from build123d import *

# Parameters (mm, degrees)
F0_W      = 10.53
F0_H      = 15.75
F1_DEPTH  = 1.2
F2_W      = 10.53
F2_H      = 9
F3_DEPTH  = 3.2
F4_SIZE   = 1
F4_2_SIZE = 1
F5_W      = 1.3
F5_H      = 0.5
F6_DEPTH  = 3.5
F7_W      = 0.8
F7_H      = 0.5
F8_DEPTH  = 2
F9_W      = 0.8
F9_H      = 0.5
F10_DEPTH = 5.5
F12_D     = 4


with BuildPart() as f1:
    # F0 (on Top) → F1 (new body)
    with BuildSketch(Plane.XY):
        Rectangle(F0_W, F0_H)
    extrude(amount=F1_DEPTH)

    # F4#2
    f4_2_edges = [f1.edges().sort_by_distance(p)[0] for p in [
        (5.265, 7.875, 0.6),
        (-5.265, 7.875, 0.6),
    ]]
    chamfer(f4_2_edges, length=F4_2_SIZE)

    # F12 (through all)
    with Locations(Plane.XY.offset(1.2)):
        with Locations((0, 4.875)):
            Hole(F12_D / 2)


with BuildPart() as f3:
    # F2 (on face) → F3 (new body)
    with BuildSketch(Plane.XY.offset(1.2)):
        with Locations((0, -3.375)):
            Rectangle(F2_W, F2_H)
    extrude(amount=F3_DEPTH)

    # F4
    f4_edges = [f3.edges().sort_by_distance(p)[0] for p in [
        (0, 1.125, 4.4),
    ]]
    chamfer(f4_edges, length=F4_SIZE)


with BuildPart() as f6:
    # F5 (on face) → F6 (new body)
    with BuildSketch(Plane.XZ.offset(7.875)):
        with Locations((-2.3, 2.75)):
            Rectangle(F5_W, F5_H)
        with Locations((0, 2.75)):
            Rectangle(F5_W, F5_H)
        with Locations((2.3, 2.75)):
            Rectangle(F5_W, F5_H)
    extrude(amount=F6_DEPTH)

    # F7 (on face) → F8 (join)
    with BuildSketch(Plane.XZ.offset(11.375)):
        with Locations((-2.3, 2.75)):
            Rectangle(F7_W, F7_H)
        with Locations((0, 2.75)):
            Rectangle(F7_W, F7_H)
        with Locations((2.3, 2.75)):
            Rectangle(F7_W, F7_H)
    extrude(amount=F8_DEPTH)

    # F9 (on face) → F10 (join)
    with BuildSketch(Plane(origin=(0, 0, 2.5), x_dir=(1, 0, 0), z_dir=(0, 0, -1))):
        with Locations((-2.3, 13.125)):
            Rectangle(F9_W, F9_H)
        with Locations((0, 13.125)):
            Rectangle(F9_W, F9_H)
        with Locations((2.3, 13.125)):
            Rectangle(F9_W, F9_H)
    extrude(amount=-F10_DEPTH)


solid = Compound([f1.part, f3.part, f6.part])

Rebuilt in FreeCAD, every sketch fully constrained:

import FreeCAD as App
import Part
import Sketcher


def edges_at(feature, points):
    """Names of the edges that pass closest to the given points."""
    edges = feature.Shape.Edges
    near = lambda p: min(range(len(edges)), key=lambda i: edges[i].distToShape(Part.Vertex(*p))[0])
    return sorted({f"Edge{near(p) + 1}" for p in points})


def add_polygon(sketch, points):
    """Adds a closed chain of lines whose ends are joined by coincident constraints."""
    first, n = sketch.GeometryCount, len(points)
    for a, b in zip(points, points[1:] + points[:1]):
        sketch.addGeometry(Part.LineSegment(App.Vector(*a, 0), App.Vector(*b, 0)), False)
    for i in range(n):
        sketch.addConstraint(Sketcher.Constraint("Coincident", first + i, 2, first + (i + 1) % n, 1))

doc = App.newDocument("Part")
body = doc.addObject("PartDesign::Body", "Body")

# Sketch on XY plane
sketch1 = body.newObject("Sketcher::SketchObject", "Sketch")
sketch1.AttachmentSupport = (doc.getObject("XY_Plane"), [""])
sketch1.MapMode = "FlatFace"
add_polygon(sketch1, [(-5, 8), (-5, -8), (5, -8), (5, 8)])  # lines 0-3
sketch1.addConstraint([
    Sketcher.Constraint("Vertical", 0),
    Sketcher.Constraint("Horizontal", 1),
    Sketcher.Constraint("Vertical", 2),
    Sketcher.Constraint("Horizontal", 3),
    Sketcher.Constraint("Symmetric", 0, 2, 2, 2, -1, 1),
    Sketcher.Constraint("DistanceX", 1, 1, 1, 2, 10.53),
    Sketcher.Constraint("DistanceY", 0, 2, 0, 1, 15.75),
])
pad1 = body.newObject("PartDesign::Pad", "Pad")
pad1.Profile = sketch1
pad1.Length = 1.2
doc.recompute()

chamfer = body.newObject("PartDesign::Chamfer", "Chamfer")
chamfer.Base = (pad1, edges_at(pad1, [(5.265, 7.875, 0.6), (-5.265, 7.875, 0.6)]))
chamfer.Size = 1

# Sketch on XY plane
sketch2 = body.newObject("Sketcher::SketchObject", "Sketch001")
sketch2.AttachmentSupport = (doc.getObject("XY_Plane"), [""])
sketch2.MapMode = "FlatFace"
sketch2.AttachmentOffset = App.Placement(App.Vector(0, 0, 1.2), App.Rotation())
sketch2.addGeometry(Part.Circle(App.Vector(0, 4.9, 0), App.Vector(0, 0, 1), 2), False)
sketch2.addConstraint([
    Sketcher.Constraint("PointOnObject", 0, 3, -2),
    Sketcher.Constraint("Diameter", 0, 4.0),
    Sketcher.Constraint("DistanceY", -1, 1, 0, 3, 4.875),
])
doc.recompute()
hole = body.newObject("PartDesign::Hole", "Hole")
hole.Profile = sketch2
hole.ThreadType = "None"
hole.Diameter = 4
hole.DepthType = "ThroughAll"
body2 = doc.addObject("PartDesign::Body", "Body001")

# Sketch on XY plane
sketch3 = body2.newObject("Sketcher::SketchObject", "Sketch002")
sketch3.AttachmentSupport = (doc.getObject("XY_Plane001"), [""])
sketch3.MapMode = "FlatFace"
sketch3.AttachmentOffset = App.Placement(App.Vector(0, 0, 1.2), App.Rotation())
add_polygon(sketch3, [(-5, 1), (-5, -8), (5, -8), (5, 1)])  # lines 0-3
sketch3.addConstraint([
    Sketcher.Constraint("Vertical", 0),
    Sketcher.Constraint("Horizontal", 1),
    Sketcher.Constraint("Vertical", 2),
    Sketcher.Constraint("Horizontal", 3),
    Sketcher.Constraint("DistanceY", 0, 2, 0, 1, 9.0),
    Sketcher.Constraint("DistanceX", 1, 1, 1, 2, 10.53),
    Sketcher.Constraint("DistanceX", 0, 2, -1, 1, 5.265),
    Sketcher.Constraint("DistanceY", 0, 2, -1, 1, 7.875),
])
pad2 = body2.newObject("PartDesign::Pad", "Pad001")
pad2.Profile = sketch3
pad2.Length = 3.2
doc.recompute()

chamfer2 = body2.newObject("PartDesign::Chamfer", "Chamfer001")
chamfer2.Base = (pad2, edges_at(pad2, [(0, 1.125, 4.4)]))
chamfer2.Size = 1
body3 = doc.addObject("PartDesign::Body", "Body002")
body3.AllowCompound = True

# Sketch on XZ plane
sketch4 = body3.newObject("Sketcher::SketchObject", "Sketch003")
sketch4.AttachmentSupport = (doc.getObject("XZ_Plane002"), [""])
sketch4.MapMode = "FlatFace"
sketch4.AttachmentOffset = App.Placement(App.Vector(0, 0, 7.875), App.Rotation())
add_polygon(sketch4, [(-3, 3), (-3, 2.5), (-1.6, 2.5), (-1.6, 3)])  # lines 0-3
add_polygon(sketch4, [(-0.7, 3), (-0.7, 2.5), (0.7, 2.5), (0.7, 3)])  # lines 4-7
add_polygon(sketch4, [(1.6, 3), (1.6, 2.5), (3, 2.5), (3, 3)])  # lines 8-11
sketch4.addConstraint([
    Sketcher.Constraint("Vertical", 0),
    Sketcher.Constraint("Horizontal", 1),
    Sketcher.Constraint("Vertical", 2),
    Sketcher.Constraint("Horizontal", 3),
    Sketcher.Constraint("Vertical", 4),
    Sketcher.Constraint("Horizontal", 5),
    Sketcher.Constraint("Vertical", 6),
    Sketcher.Constraint("Horizontal", 7),
    Sketcher.Constraint("Vertical", 8),
    Sketcher.Constraint("Horizontal", 9),
    Sketcher.Constraint("Vertical", 10),
    Sketcher.Constraint("Horizontal", 11),
    Sketcher.Constraint("Symmetric", 1, 2, 8, 2, -2),
    Sketcher.Constraint("Symmetric", 3, 2, 10, 2, -2),
    Sketcher.Constraint("Horizontal", 1, 2, 4, 2),
    Sketcher.Constraint("Horizontal", 3, 2, 6, 2),
    Sketcher.Constraint("Equal", 3, 5),
    Sketcher.Constraint("DistanceX", 1, 1, 1, 2, 1.3),
    Sketcher.Constraint("DistanceY", 0, 2, 0, 1, 0.5),
    Sketcher.Constraint("DistanceY", -1, 1, 2, 2, 3.0),
    Sketcher.Constraint("DistanceX", 1, 2, 4, 2, 1.0),
    Sketcher.Constraint("DistanceX", 5, 2, 8, 2, 1.0),
])
pad3 = body3.newObject("PartDesign::Pad", "Pad002")
pad3.Profile = sketch4
pad3.Length = 3.5

# Sketch on XZ plane
sketch5 = body3.newObject("Sketcher::SketchObject", "Sketch004")
sketch5.AttachmentSupport = (doc.getObject("XZ_Plane002"), [""])
sketch5.MapMode = "FlatFace"
sketch5.AttachmentOffset = App.Placement(App.Vector(0, 0, 11.375), App.Rotation())
add_polygon(sketch5, [(-2.7, 3), (-2.7, 2.5), (-1.9, 2.5), (-1.9, 3)])  # lines 0-3
add_polygon(sketch5, [(-0.4, 3), (-0.4, 2.5), (0.4, 2.5), (0.4, 3)])  # lines 4-7
add_polygon(sketch5, [(1.9, 3), (1.9, 2.5), (2.7, 2.5), (2.7, 3)])  # lines 8-11
sketch5.addConstraint([
    Sketcher.Constraint("Vertical", 0),
    Sketcher.Constraint("Horizontal", 1),
    Sketcher.Constraint("Vertical", 2),
    Sketcher.Constraint("Horizontal", 3),
    Sketcher.Constraint("Vertical", 4),
    Sketcher.Constraint("Horizontal", 5),
    Sketcher.Constraint("Vertical", 6),
    Sketcher.Constraint("Horizontal", 7),
    Sketcher.Constraint("Vertical", 8),
    Sketcher.Constraint("Horizontal", 9),
    Sketcher.Constraint("Vertical", 10),
    Sketcher.Constraint("Horizontal", 11),
    Sketcher.Constraint("Symmetric", 1, 2, 8, 2, -2),
    Sketcher.Constraint("Symmetric", 3, 2, 10, 2, -2),
    Sketcher.Constraint("Horizontal", 1, 2, 4, 2),
    Sketcher.Constraint("Horizontal", 3, 2, 6, 2),
    Sketcher.Constraint("Equal", 3, 5),
    Sketcher.Constraint("DistanceX", 1, 1, 1, 2, 0.8),
    Sketcher.Constraint("DistanceY", 0, 2, 0, 1, 0.5),
    Sketcher.Constraint("DistanceY", -1, 1, 2, 2, 3.0),
    Sketcher.Constraint("DistanceX", 0, 2, -1, 1, 2.7),
    Sketcher.Constraint("DistanceX", 4, 2, -1, 1, 0.4),
])
pad4 = body3.newObject("PartDesign::Pad", "Pad003")
pad4.Profile = sketch5
pad4.Length = 2

# Sketch on XY plane
sketch6 = body3.newObject("Sketcher::SketchObject", "Sketch005")
sketch6.AttachmentSupport = (doc.getObject("XY_Plane002"), [""])
sketch6.MapMode = "FlatFace"
sketch6.AttachmentOffset = App.Placement(App.Vector(0, 0, 2.5), App.Rotation())
add_polygon(sketch6, [(-2.7, -13.4), (-2.7, -12.9), (-1.9, -12.9), (-1.9, -13.4)])  # lines 0-3
add_polygon(sketch6, [(-0.4, -13.4), (-0.4, -12.9), (0.4, -12.9), (0.4, -13.4)])  # lines 4-7
add_polygon(sketch6, [(1.9, -13.4), (1.9, -12.9), (2.7, -12.9), (2.7, -13.4)])  # lines 8-11
sketch6.addConstraint([
    Sketcher.Constraint("Vertical", 0),
    Sketcher.Constraint("Horizontal", 1),
    Sketcher.Constraint("Vertical", 2),
    Sketcher.Constraint("Horizontal", 3),
    Sketcher.Constraint("Vertical", 4),
    Sketcher.Constraint("Horizontal", 5),
    Sketcher.Constraint("Vertical", 6),
    Sketcher.Constraint("Horizontal", 7),
    Sketcher.Constraint("Vertical", 8),
    Sketcher.Constraint("Horizontal", 9),
    Sketcher.Constraint("Vertical", 10),
    Sketcher.Constraint("Horizontal", 11),
    Sketcher.Constraint("Symmetric", 1, 2, 8, 2, -2),
    Sketcher.Constraint("Symmetric", 3, 2, 10, 2, -2),
    Sketcher.Constraint("Horizontal", 1, 2, 4, 2),
    Sketcher.Constraint("Horizontal", 3, 2, 6, 2),
    Sketcher.Constraint("Equal", 3, 5),
    Sketcher.Constraint("DistanceX", 1, 1, 1, 2, 0.8),
    Sketcher.Constraint("DistanceY", 0, 1, 0, 2, 0.5),
    Sketcher.Constraint("DistanceX", 0, 2, -1, 1, 2.7),
    Sketcher.Constraint("DistanceX", 4, 2, -1, 1, 0.4),
    Sketcher.Constraint("DistanceY", 0, 2, -1, 1, 12.875),
])
pad5 = body3.newObject("PartDesign::Pad", "Pad004")
pad5.Profile = sketch6
pad5.Length = 5.5

doc.recompute()
